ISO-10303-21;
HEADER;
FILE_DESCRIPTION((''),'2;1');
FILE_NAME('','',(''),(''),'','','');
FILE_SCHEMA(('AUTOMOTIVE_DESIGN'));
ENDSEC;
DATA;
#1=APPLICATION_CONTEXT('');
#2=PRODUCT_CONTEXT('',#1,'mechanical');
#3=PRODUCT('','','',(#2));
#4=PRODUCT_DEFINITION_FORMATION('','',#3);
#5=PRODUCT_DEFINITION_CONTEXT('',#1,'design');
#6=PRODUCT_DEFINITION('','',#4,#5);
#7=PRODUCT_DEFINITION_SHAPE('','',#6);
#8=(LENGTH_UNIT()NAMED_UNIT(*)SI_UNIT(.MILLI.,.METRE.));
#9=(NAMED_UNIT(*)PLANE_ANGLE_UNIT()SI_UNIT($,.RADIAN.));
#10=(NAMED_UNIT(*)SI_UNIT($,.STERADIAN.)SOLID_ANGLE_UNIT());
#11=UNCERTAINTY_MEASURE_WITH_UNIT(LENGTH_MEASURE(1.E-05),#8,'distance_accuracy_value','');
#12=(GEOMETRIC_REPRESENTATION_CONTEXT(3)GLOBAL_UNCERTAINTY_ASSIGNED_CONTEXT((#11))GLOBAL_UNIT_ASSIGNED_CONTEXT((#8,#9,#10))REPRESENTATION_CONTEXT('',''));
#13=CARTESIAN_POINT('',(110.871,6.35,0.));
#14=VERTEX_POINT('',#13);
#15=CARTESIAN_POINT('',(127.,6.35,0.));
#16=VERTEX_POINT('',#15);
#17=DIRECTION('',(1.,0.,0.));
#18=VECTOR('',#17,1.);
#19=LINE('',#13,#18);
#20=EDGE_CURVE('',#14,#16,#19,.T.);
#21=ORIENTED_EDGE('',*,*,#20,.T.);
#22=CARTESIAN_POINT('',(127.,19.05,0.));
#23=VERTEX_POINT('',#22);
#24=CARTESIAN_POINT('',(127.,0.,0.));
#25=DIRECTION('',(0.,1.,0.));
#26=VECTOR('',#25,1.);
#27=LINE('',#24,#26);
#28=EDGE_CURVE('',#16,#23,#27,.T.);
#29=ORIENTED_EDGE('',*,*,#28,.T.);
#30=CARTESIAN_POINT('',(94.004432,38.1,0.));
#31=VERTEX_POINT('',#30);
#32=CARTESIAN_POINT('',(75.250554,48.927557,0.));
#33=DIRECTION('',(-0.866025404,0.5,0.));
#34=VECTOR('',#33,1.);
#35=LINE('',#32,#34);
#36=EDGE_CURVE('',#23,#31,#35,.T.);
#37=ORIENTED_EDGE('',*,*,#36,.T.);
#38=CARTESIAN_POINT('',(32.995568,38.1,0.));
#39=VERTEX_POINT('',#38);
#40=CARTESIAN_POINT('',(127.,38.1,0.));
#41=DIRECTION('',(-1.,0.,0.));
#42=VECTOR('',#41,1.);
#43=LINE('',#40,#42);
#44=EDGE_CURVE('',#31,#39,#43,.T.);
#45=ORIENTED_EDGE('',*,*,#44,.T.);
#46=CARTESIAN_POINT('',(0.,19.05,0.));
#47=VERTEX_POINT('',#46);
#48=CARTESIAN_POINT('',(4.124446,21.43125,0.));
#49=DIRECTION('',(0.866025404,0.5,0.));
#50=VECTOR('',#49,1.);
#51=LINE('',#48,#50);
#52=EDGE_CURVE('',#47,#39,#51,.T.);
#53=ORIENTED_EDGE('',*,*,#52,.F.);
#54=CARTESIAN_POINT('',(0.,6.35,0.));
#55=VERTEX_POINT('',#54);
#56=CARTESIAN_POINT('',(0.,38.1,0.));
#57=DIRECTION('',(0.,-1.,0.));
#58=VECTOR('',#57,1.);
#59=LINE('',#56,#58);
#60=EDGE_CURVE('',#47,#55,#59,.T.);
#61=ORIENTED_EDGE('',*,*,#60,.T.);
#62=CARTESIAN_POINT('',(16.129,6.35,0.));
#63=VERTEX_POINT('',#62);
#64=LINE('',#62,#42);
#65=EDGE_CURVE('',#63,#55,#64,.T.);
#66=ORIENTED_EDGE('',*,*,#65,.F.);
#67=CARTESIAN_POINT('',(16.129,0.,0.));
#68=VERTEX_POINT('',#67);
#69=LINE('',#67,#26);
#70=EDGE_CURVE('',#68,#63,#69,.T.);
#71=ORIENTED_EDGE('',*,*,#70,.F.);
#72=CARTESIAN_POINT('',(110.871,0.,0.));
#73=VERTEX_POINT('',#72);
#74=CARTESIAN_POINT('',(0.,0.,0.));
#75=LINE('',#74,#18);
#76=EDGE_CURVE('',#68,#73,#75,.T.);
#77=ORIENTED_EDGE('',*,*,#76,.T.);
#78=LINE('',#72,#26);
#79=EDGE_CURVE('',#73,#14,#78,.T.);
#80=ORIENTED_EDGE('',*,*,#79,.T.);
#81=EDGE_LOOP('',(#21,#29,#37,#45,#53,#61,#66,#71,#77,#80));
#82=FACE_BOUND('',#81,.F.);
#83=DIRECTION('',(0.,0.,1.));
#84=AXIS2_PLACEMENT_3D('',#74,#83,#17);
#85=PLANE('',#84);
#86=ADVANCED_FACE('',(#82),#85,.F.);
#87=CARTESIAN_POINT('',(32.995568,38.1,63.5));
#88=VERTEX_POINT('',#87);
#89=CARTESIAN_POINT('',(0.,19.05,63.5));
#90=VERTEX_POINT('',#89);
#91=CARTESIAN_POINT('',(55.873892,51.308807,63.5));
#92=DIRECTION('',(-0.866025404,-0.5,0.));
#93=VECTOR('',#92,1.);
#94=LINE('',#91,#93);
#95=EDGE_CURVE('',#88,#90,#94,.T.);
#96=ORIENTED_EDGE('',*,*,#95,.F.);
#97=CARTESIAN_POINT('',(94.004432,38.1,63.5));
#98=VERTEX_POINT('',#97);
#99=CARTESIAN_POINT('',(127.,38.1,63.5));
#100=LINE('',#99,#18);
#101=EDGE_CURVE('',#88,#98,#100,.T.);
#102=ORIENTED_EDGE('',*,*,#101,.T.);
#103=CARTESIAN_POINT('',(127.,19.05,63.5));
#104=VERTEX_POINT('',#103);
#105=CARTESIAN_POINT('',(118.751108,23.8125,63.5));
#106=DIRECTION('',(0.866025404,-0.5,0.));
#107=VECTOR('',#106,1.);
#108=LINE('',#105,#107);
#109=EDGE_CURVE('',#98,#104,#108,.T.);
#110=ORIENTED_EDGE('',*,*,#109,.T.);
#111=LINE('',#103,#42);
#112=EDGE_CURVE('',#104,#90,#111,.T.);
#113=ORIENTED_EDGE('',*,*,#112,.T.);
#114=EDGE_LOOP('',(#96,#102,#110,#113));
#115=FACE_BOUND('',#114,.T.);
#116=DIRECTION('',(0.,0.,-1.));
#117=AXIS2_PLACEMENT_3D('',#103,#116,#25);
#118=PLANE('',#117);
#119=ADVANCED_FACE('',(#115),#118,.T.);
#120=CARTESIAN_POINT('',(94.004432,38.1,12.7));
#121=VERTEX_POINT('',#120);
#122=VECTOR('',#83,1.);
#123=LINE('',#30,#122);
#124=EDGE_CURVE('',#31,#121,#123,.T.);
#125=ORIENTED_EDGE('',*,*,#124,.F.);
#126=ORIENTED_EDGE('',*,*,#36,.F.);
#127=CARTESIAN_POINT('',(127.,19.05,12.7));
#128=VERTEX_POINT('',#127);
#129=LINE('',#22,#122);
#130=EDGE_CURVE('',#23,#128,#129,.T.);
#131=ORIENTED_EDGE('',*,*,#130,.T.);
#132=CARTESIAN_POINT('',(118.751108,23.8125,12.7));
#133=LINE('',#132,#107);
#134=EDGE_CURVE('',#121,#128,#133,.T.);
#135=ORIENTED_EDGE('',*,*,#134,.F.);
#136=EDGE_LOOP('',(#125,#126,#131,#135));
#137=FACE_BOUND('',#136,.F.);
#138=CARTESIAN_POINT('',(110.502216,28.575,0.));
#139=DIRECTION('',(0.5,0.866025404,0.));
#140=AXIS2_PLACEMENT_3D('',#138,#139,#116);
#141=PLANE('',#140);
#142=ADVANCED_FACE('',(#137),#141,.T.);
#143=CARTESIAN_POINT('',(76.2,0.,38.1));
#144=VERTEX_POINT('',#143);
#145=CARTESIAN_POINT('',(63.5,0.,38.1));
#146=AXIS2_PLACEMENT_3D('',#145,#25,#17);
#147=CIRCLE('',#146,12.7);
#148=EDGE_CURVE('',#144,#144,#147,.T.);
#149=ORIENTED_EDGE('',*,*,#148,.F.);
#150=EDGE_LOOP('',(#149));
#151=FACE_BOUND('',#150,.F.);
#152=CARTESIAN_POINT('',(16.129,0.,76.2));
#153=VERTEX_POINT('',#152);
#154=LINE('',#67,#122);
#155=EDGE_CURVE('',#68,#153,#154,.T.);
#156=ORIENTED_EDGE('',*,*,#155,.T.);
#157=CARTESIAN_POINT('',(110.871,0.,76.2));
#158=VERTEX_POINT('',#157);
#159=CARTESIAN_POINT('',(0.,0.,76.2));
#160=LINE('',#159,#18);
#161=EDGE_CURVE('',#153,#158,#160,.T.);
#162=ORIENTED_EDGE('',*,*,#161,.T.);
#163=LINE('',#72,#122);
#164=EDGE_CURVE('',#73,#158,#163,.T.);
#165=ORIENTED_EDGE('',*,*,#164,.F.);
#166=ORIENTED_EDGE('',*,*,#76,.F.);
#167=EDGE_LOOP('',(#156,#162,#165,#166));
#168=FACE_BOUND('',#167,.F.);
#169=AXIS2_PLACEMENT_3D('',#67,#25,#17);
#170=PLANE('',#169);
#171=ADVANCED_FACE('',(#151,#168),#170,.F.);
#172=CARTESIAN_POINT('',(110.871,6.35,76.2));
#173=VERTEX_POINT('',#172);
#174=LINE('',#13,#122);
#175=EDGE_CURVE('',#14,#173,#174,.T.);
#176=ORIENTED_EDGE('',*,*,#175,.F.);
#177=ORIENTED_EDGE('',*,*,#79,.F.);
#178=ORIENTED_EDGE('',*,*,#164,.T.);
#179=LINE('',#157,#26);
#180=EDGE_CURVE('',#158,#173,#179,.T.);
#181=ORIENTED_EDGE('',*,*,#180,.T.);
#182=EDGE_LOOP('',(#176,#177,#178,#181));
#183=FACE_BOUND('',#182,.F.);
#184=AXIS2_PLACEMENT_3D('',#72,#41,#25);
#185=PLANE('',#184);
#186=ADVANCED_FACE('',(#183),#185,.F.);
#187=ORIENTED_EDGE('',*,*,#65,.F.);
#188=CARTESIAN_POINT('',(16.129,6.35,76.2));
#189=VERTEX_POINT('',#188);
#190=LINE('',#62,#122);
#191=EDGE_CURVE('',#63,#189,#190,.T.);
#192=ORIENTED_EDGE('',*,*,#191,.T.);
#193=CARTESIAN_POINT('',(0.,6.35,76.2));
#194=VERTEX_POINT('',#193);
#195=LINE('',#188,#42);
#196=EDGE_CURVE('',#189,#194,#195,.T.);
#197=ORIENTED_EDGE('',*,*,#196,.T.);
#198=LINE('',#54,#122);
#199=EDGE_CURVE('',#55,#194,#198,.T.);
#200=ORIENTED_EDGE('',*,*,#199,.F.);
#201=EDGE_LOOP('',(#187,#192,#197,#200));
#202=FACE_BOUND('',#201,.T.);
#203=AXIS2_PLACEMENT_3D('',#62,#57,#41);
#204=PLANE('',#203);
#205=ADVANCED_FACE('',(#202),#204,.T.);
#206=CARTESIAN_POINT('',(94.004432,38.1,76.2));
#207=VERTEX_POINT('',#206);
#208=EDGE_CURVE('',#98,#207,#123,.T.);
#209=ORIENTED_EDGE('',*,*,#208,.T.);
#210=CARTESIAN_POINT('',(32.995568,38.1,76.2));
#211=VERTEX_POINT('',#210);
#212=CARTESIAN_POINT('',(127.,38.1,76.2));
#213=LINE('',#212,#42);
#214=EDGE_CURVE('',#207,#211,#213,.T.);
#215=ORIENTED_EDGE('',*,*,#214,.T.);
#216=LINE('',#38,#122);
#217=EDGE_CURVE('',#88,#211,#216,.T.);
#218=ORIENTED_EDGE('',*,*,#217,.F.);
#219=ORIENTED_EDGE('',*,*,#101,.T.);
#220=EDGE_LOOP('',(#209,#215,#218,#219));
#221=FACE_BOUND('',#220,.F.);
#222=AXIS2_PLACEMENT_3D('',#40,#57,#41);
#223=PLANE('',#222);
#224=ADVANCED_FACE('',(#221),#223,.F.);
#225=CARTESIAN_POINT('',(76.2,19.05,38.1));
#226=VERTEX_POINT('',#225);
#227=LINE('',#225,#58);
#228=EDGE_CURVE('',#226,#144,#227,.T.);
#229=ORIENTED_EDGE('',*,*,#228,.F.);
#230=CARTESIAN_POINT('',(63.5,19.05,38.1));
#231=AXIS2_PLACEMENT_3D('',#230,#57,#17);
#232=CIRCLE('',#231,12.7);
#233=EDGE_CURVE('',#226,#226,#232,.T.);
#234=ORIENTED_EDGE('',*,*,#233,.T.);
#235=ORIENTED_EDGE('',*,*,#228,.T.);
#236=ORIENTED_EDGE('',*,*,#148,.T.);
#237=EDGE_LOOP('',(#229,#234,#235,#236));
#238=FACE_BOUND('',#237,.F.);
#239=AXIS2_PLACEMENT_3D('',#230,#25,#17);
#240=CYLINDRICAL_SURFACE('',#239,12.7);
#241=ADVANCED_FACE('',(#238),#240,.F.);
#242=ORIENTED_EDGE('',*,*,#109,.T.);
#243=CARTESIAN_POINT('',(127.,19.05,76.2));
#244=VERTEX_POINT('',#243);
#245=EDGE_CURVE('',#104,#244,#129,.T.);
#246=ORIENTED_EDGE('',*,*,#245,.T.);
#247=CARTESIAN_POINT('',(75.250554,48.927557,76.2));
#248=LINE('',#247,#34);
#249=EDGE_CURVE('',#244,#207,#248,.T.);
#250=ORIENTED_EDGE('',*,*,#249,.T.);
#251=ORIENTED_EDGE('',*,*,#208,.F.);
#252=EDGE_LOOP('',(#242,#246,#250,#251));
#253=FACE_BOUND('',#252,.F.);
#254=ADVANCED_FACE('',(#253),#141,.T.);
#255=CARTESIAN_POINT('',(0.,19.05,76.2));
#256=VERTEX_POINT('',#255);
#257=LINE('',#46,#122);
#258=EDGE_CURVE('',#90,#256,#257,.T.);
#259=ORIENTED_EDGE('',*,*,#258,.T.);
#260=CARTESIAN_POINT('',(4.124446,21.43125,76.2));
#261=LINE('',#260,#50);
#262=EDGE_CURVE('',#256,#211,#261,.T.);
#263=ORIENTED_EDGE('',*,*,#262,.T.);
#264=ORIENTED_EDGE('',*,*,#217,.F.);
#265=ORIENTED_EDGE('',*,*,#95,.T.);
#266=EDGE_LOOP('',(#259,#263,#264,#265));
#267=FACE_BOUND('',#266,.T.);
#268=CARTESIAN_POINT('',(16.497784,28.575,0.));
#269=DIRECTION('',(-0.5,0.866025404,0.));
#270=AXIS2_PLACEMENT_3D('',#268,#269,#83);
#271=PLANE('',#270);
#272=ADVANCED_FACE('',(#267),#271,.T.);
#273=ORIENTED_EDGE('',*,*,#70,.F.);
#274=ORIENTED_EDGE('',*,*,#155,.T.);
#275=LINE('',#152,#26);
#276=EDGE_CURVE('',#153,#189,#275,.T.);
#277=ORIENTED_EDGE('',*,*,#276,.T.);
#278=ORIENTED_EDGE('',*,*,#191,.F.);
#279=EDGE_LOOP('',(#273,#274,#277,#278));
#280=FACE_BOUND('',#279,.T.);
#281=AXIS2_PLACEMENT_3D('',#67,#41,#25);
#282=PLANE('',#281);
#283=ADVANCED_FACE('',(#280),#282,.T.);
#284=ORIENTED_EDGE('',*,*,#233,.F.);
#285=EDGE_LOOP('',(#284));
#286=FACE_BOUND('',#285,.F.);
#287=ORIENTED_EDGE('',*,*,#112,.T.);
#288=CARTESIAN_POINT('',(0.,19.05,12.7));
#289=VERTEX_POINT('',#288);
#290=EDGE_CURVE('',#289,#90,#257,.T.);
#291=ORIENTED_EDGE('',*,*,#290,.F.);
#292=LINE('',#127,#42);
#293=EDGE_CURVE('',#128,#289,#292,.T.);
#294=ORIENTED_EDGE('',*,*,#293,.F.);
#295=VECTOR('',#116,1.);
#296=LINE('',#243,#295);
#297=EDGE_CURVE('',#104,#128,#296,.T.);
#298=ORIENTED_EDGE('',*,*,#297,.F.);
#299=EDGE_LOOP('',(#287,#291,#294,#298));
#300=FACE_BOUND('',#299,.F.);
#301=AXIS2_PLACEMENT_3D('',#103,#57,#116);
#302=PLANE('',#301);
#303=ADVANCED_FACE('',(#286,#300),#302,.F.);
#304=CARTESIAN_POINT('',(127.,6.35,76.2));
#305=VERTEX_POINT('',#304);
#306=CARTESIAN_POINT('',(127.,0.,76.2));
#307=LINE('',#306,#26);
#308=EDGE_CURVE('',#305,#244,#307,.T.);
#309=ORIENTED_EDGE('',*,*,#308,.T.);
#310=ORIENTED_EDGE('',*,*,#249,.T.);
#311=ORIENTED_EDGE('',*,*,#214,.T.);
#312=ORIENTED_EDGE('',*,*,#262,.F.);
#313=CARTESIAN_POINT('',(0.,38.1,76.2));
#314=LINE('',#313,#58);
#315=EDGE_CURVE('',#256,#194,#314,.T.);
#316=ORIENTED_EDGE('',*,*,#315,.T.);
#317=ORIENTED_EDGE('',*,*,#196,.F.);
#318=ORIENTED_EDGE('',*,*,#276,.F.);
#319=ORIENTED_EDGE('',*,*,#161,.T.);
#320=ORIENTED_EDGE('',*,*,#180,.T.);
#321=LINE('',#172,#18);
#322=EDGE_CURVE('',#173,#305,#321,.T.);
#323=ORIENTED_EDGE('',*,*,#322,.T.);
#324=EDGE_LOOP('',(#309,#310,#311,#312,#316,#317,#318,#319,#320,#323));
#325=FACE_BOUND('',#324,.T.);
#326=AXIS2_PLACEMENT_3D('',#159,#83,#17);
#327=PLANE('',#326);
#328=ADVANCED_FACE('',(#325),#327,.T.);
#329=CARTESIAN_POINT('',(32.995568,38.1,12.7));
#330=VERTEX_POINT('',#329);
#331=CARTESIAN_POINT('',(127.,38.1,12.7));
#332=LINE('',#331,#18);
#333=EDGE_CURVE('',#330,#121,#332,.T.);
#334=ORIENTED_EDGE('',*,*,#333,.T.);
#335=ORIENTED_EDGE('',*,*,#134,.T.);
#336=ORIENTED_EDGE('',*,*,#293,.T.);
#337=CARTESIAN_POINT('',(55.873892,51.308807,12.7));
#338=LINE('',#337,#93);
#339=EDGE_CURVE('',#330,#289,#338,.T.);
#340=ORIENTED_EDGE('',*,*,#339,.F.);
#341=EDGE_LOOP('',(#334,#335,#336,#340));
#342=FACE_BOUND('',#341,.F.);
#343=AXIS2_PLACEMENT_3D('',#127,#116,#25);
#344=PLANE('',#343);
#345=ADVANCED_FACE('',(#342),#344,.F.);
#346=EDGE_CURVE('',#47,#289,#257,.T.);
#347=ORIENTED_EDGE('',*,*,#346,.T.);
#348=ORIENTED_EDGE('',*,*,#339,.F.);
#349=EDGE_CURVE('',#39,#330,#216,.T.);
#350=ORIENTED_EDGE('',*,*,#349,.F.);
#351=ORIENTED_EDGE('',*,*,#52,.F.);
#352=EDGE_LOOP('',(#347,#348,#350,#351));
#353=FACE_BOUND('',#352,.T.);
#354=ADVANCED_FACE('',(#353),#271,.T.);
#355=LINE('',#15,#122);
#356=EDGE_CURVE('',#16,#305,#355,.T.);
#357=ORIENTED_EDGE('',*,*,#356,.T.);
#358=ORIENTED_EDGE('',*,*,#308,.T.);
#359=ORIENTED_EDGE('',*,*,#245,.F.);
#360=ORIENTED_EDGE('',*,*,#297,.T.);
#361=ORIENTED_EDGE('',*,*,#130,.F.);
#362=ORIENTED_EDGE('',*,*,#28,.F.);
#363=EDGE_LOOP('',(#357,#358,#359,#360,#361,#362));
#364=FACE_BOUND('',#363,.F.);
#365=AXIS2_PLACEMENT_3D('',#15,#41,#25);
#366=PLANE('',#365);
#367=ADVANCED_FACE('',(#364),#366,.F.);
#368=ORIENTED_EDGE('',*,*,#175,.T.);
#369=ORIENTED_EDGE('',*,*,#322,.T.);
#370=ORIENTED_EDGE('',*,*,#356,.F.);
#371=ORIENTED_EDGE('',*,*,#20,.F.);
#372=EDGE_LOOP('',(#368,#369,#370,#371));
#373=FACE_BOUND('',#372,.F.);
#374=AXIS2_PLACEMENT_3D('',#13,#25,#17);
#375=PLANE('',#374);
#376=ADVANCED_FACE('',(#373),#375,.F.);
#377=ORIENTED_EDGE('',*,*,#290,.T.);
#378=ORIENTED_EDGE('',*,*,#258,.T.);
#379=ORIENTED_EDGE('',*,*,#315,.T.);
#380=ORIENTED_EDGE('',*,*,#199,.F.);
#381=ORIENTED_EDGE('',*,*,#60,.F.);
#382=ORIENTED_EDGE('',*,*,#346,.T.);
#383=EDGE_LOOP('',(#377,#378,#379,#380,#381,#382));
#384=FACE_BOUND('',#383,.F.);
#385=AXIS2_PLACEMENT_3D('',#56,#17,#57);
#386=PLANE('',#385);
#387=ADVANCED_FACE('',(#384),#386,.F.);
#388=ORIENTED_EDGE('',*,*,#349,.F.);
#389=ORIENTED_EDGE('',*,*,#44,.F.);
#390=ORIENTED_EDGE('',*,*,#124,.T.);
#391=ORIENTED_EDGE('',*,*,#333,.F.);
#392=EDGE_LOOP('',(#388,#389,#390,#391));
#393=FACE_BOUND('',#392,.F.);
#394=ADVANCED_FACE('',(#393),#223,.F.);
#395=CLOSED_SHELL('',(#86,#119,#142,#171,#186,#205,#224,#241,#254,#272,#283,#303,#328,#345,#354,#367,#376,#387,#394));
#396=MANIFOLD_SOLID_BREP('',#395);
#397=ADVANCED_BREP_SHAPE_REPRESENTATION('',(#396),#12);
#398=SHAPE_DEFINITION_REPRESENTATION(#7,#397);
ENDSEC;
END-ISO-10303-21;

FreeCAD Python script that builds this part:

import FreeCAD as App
import Part
import Sketcher

V = App.Vector
Q = App.Units.Quantity


def edges_at(feature, points):
    """Names of the edges that pass closest to the given points."""
    edges = feature.Shape.Edges
    near = lambda p: min(range(len(edges)), key=lambda i: edges[i].distToShape(Part.Vertex(*p))[0])
    return sorted({f"Edge{near(p) + 1}" for p in points})


def add_polygon(sketch, points):
    """Adds a closed chain of lines whose ends are joined by coincident constraints."""
    first, n = sketch.GeometryCount, len(points)
    for a, b in zip(points, points[1:] + points[:1]):
        sketch.addGeometry(Part.LineSegment(App.Vector(*a, 0), App.Vector(*b, 0)), False)
    for i in range(n):
        sketch.addConstraint(Sketcher.Constraint("Coincident", first + i, 2, first + (i + 1) % n, 1))

doc = App.newDocument("Part")
body = doc.addObject("PartDesign::Body", "Body")

# Sketch on XY plane
sketch1 = doc.addObject("Sketcher::SketchObject", "Sketch")
body.addObject(sketch1)
sketch1.AttachmentSupport = (doc.XY_Plane, [""])
sketch1.MapMode = "FlatFace"
add_polygon(sketch1, [(16.129, 6.35), (16.129, 0), (110.871, 0), (110.871, 6.35), (127, 6.35), (127, 38.1), (0, 38.1), (0, 6.35)])  # lines 0-7
sketch1.addConstraint([
    Sketcher.Constraint("Vertical", 0),
    Sketcher.Constraint("Horizontal", 1),
    Sketcher.Constraint("Vertical", 2),
    Sketcher.Constraint("Horizontal", 3),
    Sketcher.Constraint("Vertical", 4),
    Sketcher.Constraint("Horizontal", 5),
    Sketcher.Constraint("Vertical", 6),
    Sketcher.Constraint("Horizontal", 7),
    Sketcher.Constraint("PointOnObject", 0, 2, -1),
    Sketcher.Constraint("PointOnObject", 5, 2, -2),
    Sketcher.Constraint("Horizontal", 3, 2, 6, 2),
    Sketcher.Constraint("Equal", 3, 7),
    Sketcher.Constraint("DistanceX", 5, 2, 5, 1, Q("5 in")),
    Sketcher.Constraint("DistanceY", 0, 2, 0, 1, Q("0.25 in")),
    Sketcher.Constraint("DistanceY", -1, 1, 4, 2, Q("1.5 in")),
    Sketcher.Constraint("DistanceX", 3, 1, 3, 2, Q("0.635 in")),
])
pad1 = doc.addObject("PartDesign::Pad", "Pad")
body.addObject(pad1)
pad1.Profile = sketch1
pad1.Length = Q("3 in")
doc.recompute()

chamfer = doc.addObject("PartDesign::Chamfer", "Chamfer")
body.addObject(chamfer)
chamfer.Base = (pad1, edges_at(pad1, [(127, 38.1, 38.1)]))
chamfer.ChamferType = "Distance and Angle"
chamfer.Size = Q("0.75 in")
chamfer.Angle = 60
doc.recompute()

chamfer2 = doc.addObject("PartDesign::Chamfer", "Chamfer001")
body.addObject(chamfer2)
chamfer2.Base = (chamfer, edges_at(chamfer, [(0, 38.1, 38.1)]))
chamfer2.ChamferType = "Distance and Angle"
chamfer2.Size = Q("0.75 in")
chamfer2.Angle = 60
chamfer2.FlipDirection = True

# Sketch on YZ plane
sketch2 = doc.addObject("Sketcher::SketchObject", "Sketch001")
body.addObject(sketch2)
sketch2.AttachmentSupport = (doc.YZ_Plane, [""])
sketch2.MapMode = "FlatFace"
sketch2.AttachmentOffset = App.Placement(V(0, 0, 5 * 25.4), App.Rotation())
add_polygon(sketch2, [(45.8971, 63.5), (19.05, 63.5), (19.05, 12.7), (45.8971, 12.7)])  # lines 0-3
sketch2.addConstraint([
    Sketcher.Constraint("Horizontal", 0),
    Sketcher.Constraint("Vertical", 1),
    Sketcher.Constraint("Horizontal", 2),
    Sketcher.Constraint("Vertical", 3),
    Sketcher.Constraint("DistanceY", -1, 1, 1, 2, Q("0.5 in")),
    Sketcher.Constraint("DistanceY", 1, 2, 1, 1, Q("2 in")),
    Sketcher.Constraint("DistanceX", -1, 1, 0, 2, Q("0.75 in")),
    Sketcher.Constraint("DistanceX", 0, 2, 0, 1, Q("26.847 mm")),
])
pocket1 = doc.addObject("PartDesign::Pocket", "Pocket")
body.addObject(pocket1)
pocket1.Profile = sketch2
pocket1.Length = Q("10 in")

# Sketch on XZ plane
sketch3 = doc.addObject("Sketcher::SketchObject", "Sketch002")
body.addObject(sketch3)
sketch3.AttachmentSupport = (doc.XZ_Plane, [""])
sketch3.MapMode = "FlatFace"
sketch3.AttachmentOffset = App.Placement(V(0, 0, -0.75 * 25.4), App.Rotation())
sketch3.addGeometry(Part.Circle(V(63.5, 38.1, 0), V(0, 0, 1), 12.7), False)
sketch3.addConstraint([
    Sketcher.Constraint("Diameter", 0, Q("1 in")),
    Sketcher.Constraint("DistanceX", -1, 1, 0, 3, Q("2.5 in")),
    Sketcher.Constraint("DistanceY", -1, 1, 0, 3, Q("1.5 in")),
])
pocket2 = doc.addObject("PartDesign::Pocket", "Pocket001")
body.addObject(pocket2)
pocket2.Profile = sketch3
pocket2.Length = Q("10 in")
pocket2.Reversed = True

doc.recompute()
